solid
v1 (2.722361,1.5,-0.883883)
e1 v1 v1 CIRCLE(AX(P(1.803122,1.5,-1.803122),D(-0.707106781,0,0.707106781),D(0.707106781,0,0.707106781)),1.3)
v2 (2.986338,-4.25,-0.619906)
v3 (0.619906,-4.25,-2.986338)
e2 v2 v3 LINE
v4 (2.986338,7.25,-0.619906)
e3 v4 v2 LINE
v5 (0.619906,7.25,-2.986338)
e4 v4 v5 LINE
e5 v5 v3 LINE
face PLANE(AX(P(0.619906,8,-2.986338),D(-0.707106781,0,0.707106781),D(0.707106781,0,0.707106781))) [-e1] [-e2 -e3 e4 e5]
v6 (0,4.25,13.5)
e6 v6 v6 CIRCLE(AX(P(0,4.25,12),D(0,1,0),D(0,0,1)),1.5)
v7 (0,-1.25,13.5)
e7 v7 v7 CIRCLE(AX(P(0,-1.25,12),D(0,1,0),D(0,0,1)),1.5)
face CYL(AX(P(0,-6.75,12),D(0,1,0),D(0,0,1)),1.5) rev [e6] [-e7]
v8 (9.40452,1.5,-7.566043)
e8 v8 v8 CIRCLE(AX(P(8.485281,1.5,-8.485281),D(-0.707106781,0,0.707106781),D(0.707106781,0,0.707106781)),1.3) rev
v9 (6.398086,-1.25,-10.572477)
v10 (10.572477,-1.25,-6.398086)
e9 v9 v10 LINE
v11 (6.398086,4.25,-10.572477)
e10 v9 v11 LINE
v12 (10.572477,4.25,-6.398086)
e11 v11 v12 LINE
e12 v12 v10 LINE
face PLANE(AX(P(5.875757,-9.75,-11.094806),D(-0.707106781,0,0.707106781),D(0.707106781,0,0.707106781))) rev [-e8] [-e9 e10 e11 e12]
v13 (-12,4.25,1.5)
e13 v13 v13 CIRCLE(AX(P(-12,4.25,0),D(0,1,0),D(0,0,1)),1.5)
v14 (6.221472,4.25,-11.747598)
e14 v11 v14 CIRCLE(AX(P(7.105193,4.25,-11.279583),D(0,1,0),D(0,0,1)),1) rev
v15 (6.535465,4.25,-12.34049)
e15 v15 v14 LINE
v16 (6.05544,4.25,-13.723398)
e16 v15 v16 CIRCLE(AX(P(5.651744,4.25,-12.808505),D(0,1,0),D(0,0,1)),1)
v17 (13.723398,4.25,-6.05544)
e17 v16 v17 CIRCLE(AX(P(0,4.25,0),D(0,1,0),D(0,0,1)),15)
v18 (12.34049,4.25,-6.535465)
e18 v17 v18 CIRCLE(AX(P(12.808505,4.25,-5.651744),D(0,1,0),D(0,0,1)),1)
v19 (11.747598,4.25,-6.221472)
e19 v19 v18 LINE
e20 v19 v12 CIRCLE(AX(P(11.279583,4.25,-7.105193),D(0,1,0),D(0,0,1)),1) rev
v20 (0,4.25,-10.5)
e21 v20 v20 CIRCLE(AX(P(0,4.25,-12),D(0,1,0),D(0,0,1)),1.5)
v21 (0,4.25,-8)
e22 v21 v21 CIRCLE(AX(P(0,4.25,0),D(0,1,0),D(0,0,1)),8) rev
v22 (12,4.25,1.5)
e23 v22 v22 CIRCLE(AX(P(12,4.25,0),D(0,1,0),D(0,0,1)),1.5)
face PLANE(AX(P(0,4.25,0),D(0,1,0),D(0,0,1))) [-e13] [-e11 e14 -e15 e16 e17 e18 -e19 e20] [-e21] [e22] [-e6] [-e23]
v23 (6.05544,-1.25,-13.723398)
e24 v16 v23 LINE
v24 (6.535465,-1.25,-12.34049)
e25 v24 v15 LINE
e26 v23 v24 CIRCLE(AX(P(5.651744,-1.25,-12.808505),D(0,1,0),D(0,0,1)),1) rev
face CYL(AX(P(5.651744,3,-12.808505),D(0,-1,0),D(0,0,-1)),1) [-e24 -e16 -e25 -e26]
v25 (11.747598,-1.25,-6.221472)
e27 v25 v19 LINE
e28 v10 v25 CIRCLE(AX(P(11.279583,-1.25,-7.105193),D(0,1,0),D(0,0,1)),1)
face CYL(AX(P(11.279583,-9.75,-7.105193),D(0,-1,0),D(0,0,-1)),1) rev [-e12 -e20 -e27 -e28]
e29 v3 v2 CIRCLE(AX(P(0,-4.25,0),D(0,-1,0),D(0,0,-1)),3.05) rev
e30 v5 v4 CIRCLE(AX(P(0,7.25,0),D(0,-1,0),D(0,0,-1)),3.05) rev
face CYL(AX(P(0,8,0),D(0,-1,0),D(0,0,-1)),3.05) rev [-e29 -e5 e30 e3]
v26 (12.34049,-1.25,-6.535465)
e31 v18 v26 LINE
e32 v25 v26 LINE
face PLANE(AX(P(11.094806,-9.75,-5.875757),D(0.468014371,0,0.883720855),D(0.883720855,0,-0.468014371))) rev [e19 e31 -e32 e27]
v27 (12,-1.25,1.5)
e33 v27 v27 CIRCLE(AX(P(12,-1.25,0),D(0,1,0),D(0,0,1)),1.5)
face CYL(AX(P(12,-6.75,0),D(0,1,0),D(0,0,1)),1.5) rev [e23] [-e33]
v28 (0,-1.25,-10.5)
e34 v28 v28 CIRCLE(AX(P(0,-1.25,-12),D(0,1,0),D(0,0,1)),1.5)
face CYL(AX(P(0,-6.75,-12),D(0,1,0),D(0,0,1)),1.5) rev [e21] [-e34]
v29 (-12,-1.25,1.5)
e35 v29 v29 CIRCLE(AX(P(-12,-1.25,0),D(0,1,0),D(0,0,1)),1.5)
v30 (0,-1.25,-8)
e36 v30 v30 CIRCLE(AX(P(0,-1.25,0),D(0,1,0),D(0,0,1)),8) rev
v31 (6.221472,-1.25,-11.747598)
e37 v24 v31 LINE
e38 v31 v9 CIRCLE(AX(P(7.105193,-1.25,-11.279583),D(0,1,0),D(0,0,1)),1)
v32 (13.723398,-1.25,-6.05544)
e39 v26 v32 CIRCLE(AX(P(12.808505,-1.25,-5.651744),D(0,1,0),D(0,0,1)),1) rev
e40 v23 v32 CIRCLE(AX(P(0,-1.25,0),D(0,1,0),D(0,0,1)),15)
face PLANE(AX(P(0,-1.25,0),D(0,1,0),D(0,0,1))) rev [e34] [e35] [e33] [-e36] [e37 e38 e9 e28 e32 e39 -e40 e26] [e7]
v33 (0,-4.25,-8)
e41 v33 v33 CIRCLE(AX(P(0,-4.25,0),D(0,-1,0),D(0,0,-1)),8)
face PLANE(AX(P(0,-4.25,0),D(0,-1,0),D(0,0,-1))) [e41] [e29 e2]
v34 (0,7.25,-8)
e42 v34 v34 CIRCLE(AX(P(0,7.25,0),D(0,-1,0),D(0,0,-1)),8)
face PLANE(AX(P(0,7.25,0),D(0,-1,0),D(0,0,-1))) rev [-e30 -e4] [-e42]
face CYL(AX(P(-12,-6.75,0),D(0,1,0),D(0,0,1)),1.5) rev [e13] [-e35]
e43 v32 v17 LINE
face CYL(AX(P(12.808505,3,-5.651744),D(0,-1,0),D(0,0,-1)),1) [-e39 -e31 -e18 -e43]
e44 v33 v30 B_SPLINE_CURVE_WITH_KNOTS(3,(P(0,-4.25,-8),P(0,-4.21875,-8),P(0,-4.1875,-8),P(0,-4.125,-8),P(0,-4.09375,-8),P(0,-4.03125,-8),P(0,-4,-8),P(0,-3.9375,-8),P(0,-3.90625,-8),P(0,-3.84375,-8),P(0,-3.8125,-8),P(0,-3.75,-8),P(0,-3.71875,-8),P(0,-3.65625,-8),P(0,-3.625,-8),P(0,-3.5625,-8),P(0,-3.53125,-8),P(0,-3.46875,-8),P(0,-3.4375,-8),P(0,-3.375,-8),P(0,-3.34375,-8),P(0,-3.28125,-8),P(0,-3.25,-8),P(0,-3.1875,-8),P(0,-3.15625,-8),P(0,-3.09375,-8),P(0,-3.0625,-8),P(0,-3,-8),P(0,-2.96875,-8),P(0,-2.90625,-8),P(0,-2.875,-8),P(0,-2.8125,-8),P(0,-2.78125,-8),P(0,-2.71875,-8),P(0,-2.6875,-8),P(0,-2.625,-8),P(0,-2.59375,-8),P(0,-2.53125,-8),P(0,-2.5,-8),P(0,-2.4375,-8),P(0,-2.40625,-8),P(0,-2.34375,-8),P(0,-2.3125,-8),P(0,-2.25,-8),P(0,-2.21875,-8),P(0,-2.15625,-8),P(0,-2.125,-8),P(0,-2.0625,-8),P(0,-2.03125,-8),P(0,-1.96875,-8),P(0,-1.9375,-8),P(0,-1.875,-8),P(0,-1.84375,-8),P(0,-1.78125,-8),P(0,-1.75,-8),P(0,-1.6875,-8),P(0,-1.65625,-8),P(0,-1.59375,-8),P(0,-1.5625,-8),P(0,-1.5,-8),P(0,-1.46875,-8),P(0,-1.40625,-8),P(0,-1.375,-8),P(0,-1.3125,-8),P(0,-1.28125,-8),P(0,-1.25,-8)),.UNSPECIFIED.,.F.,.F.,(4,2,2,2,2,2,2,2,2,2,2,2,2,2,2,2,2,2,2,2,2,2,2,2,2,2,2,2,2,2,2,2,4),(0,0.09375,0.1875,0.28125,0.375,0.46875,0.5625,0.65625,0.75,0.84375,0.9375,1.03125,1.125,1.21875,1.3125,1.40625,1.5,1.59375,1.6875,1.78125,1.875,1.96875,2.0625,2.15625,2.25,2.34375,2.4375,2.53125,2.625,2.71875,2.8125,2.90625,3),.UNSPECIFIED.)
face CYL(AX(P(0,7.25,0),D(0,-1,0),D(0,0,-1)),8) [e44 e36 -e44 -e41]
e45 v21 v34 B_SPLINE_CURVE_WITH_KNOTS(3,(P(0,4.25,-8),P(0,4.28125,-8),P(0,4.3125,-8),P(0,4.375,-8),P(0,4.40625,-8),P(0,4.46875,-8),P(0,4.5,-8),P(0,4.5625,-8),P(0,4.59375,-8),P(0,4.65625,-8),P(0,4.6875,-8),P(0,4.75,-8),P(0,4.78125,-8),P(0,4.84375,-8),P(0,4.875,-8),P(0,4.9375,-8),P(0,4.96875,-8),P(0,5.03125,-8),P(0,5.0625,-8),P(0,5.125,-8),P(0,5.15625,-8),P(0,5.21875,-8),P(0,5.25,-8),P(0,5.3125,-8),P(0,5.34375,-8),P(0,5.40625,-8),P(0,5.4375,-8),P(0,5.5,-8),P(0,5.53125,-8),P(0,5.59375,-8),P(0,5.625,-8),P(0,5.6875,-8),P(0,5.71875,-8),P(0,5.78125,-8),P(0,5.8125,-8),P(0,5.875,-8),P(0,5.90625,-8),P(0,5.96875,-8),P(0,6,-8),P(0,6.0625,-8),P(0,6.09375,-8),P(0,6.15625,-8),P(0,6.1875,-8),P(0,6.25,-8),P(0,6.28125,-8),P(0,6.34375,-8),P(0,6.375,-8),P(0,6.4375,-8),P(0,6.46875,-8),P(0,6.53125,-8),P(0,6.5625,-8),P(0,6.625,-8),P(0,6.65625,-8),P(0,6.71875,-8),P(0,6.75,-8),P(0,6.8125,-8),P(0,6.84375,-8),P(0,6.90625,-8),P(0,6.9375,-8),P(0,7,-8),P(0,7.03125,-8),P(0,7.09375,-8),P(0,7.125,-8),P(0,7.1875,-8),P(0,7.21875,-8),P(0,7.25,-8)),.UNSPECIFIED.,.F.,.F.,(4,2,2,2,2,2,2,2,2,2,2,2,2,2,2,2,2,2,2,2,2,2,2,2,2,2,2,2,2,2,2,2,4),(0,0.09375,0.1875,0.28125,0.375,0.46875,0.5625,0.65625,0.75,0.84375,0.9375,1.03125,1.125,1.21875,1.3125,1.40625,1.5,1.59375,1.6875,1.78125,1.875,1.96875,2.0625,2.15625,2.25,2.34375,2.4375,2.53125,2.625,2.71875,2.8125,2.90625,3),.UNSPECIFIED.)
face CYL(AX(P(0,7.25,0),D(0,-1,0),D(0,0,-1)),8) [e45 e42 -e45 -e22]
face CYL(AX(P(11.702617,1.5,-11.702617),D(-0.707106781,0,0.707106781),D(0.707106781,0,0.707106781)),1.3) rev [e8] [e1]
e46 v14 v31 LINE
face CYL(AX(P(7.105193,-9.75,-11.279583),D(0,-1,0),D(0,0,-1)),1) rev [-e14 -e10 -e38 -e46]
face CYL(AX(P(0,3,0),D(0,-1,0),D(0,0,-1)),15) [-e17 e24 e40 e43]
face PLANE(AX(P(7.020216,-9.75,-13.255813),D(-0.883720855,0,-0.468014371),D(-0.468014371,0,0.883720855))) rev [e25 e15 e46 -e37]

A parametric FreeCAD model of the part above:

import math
import FreeCAD as App
import Part
import Sketcher
from FreeCAD import Vector
Q = App.Units.Quantity


def edges_at(feature, points):
    """Names of the edges that pass closest to the given points."""
    edges = feature.Shape.Edges
    near = lambda p: min(range(len(edges)), key=lambda i: edges[i].distToShape(Part.Vertex(*p))[0])
    return sorted({f"Edge{near(p) + 1}" for p in points})

doc = App.newDocument("Part")
params = doc.addObject("Spreadsheet::Sheet", "Params")
for row, (alias, value) in enumerate([
    ("sketch1_diameter", "30 mm"),
    ("sketch1_diameter2", "3 mm"),
    ("sketch1_diameter3", "4 mm"),
    ("pad1_length", "3 mm"),
    ("sketch2_diameter", "16 mm"),
    ("pad2_length", "4.25 mm"),
    ("pad2_length2", "7.25 mm"),
    ("sketch3_diameter", "30 mm"),
    ("pad3_length", "1.25 mm"),
    ("pad3_length2", "4.25 mm"),
    ("sketch4_radius", "3.05 mm"),
    ("sketch5_diameter", "2.6 mm"),
    ("pocket2_length", "14 mm"),
    ("sketch6_diameter", "3 mm"),
    ("pocket3_length", "14 mm"),
    ("sketch7_radius", "15 mm"),
    ("pocket4_length", "14 mm"),
    ("fillet_radius", "1 mm"),
], start=1):
    params.set(f"A{row}", alias)
    params.set(f"B{row}", "=" + value)
    params.setAlias(f"B{row}", alias)

body = doc.addObject("PartDesign::Body", "Body")

sketch1 = body.newObject("Sketcher::SketchObject", "Sketch")
sketch1.AttachmentSupport = (doc.getObject("XZ_Plane"), [""])
sketch1.MapMode = "FlatFace"
sketch1.addGeometry([
    Part.Circle(Vector(0, 0, 0), Vector(0, 0, 1), 15),
    Part.Circle(Vector(0, -12, 0), Vector(0, 0, 1), 1.5),
    Part.Circle(Vector(0, -6, 0), Vector(0, 0, 1), 1.5),
    Part.Circle(Vector(-12, 0, 0), Vector(0, 0, 1), 1.5),
    Part.Circle(Vector(-6, 0, 0), Vector(0, 0, 1), 1.5),
    Part.Circle(Vector(12, 0, 0), Vector(0, 0, 1), 1.5),
    Part.Circle(Vector(0, 0, 0), Vector(0, 0, 1), 2),
    Part.Circle(Vector(0, 6, 0), Vector(0, 0, 1), 1.5),
    Part.Circle(Vector(6, 0, 0), Vector(0, 0, 1), 1.5),
    Part.Circle(Vector(0, 12, 0), Vector(0, 0, 1), 1.5),
], False)
sketch1.addConstraint([
    Sketcher.Constraint("Coincident", 0, 3, -1, 1),
    Sketcher.Constraint("Coincident", 6, 3, -1, 1),
    Sketcher.Constraint("Equal", 1, 2),
    Sketcher.Constraint("Equal", 2, 3),
    Sketcher.Constraint("Equal", 3, 4),
    Sketcher.Constraint("Equal", 4, 5),
    Sketcher.Constraint("Equal", 5, 7),
    Sketcher.Constraint("Equal", 7, 8),
    Sketcher.Constraint("Equal", 8, 9),
    Sketcher.Constraint("Symmetric", 3, 3, 5, 3, -1, 1),
    Sketcher.Constraint("Symmetric", 2, 3, 7, 3, -1, 1),
    Sketcher.Constraint("Symmetric", 4, 3, 8, 3, -1, 1),
    Sketcher.Constraint("Symmetric", 1, 3, 9, 3, -1, 1),
    Sketcher.Constraint("PointOnObject", 1, 3, -2),
    Sketcher.Constraint("PointOnObject", 2, 3, -2),
    Sketcher.Constraint("PointOnObject", 3, 3, -1),
    Sketcher.Constraint("PointOnObject", 4, 3, -1),
    Sketcher.Constraint("Diameter", 0, 30.0),
    Sketcher.Constraint("Diameter", 1, 3.0),
    Sketcher.Constraint("Diameter", 6, 4.0),
    Sketcher.Constraint("DistanceY", 1, 3, -1, 1, 12.0),
    Sketcher.Constraint("DistanceY", 2, 3, -1, 1, 6.0),
    Sketcher.Constraint("DistanceX", 3, 3, -1, 1, 12.0),
    Sketcher.Constraint("DistanceX", 4, 3, -1, 1, 6.0),
])
sketch1.setExpression("Constraints[17]", "Params.sketch1_diameter")
sketch1.setExpression("Constraints[18]", "Params.sketch1_diameter2")
sketch1.setExpression("Constraints[19]", "Params.sketch1_diameter3")
pad1 = body.newObject("PartDesign::Pad", "Pad")
pad1.Profile = sketch1
pad1.setExpression("Length", "Params.pad1_length")
pad1.Reversed = True

sketch2 = body.newObject("Sketcher::SketchObject", "Sketch001")
sketch2.AttachmentSupport = (doc.getObject("XZ_Plane"), [""])
sketch2.MapMode = "FlatFace"
sketch2.addGeometry(Part.Circle(Vector(0, 0, 0), Vector(0, 0, 1), 8), False)
sketch2.addConstraint([
    Sketcher.Constraint("Coincident", 0, 3, -1, 1),
    Sketcher.Constraint("Diameter", 0, 16.0),
])
sketch2.setExpression("Constraints[1]", "Params.sketch2_diameter")
pad2 = body.newObject("PartDesign::Pad", "Pad001")
pad2.Profile = sketch2
pad2.Type = "TwoLengths"
pad2.setExpression("Length", "Params.pad2_length")
pad2.setExpression("Length2", "Params.pad2_length2")

sketch3 = body.newObject("Sketcher::SketchObject", "Sketch002")
sketch3.AttachmentSupport = (doc.getObject("XZ_Plane"), [""])
sketch3.MapMode = "FlatFace"
sketch3.AttachmentOffset = App.Placement(Vector(0, 0, -3), App.Rotation())
sketch3.addGeometry(Part.Circle(Vector(0, 0, 0), Vector(0, 0, 1), 15), False)
sketch3.addConstraint([
    Sketcher.Constraint("Coincident", 0, 3, -1, 1),
    Sketcher.Constraint("Diameter", 0, 30.0),
])
sketch3.setExpression("Constraints[1]", "Params.sketch3_diameter")
pad3 = body.newObject("PartDesign::Pad", "Pad002")
pad3.Profile = sketch3
pad3.Type = "TwoLengths"
pad3.setExpression("Length", "Params.pad3_length")
pad3.setExpression("Length2", "Params.pad3_length2")
pad3.Reversed = True

sketch4 = body.newObject("Sketcher::SketchObject", "Sketch003")
sketch4.AttachmentSupport = (doc.getObject("XZ_Plane"), [""])
sketch4.MapMode = "FlatFace"
sketch4.AttachmentOffset = App.Placement(Vector(0, 0, -3), App.Rotation())
sketch4.addGeometry([
    Part.LineSegment(Vector(2.986338, -0.619906, 0), Vector(0.619906, -2.986338, 0)),
    Part.ArcOfCircle(Part.Circle(Vector(0, 0, 0), Vector(0, 0, 1), 3.05), math.radians(-11.726957), math.radians(281.726957)),
], False)
sketch4.addConstraint([
    Sketcher.Constraint("Coincident", 0, 1, 1, 1),
    Sketcher.Constraint("Coincident", 1, 2, 0, 2),
    Sketcher.Constraint("Coincident", 1, 3, -1, 1),
    Sketcher.Constraint("Angle", 0, Q("-135 deg")),
    Sketcher.Constraint("Radius", 1, 3.05),
    Sketcher.Constraint("Distance", 0, 3.34664),
])
sketch4.setExpression("Constraints[4]", "Params.sketch4_radius")
pocket1 = body.newObject("PartDesign::Pocket", "Pocket")
pocket1.Profile = sketch4
pocket1.Type = "ThroughAll"
pocket1.Midplane = True

sketch5 = body.newObject("Sketcher::SketchObject", "Sketch004")
sketch5.Placement = App.Placement(Vector(1.803122, 0, -1.803122), App.Rotation(Vector(0.707106781, 0, 0.707106781), Vector(0, 0.999999999, 0), Vector(-0.707106781, 0, 0.707106781), "ZXY"))
sketch5.addGeometry(Part.Circle(Vector(0, 1.5, 0), Vector(0, 0, 1), 1.3), False)
sketch5.addConstraint([
    Sketcher.Constraint("PointOnObject", 0, 3, -2),
    Sketcher.Constraint("Diameter", 0, 2.6),
    Sketcher.Constraint("DistanceY", -1, 1, 0, 3, 1.5),
])
sketch5.setExpression("Constraints[1]", "Params.sketch5_diameter")
pocket2 = body.newObject("PartDesign::Pocket", "Pocket001")
pocket2.Profile = sketch5
pocket2.setExpression("Length", "Params.pocket2_length")

sketch6 = body.newObject("Sketcher::SketchObject", "Sketch005")
sketch6.AttachmentSupport = (doc.getObject("XZ_Plane"), [""])
sketch6.MapMode = "FlatFace"
sketch6.AttachmentOffset = App.Placement(Vector(0, 0, -7.25), App.Rotation())
sketch6.addGeometry([
    Part.Circle(Vector(0, -12, 0), Vector(0, 0, 1), 1.5),
    Part.Circle(Vector(-12, 0, 0), Vector(0, 0, 1), 1.5),
    Part.Circle(Vector(12, 0, 0), Vector(0, 0, 1), 1.5),
    Part.Circle(Vector(0, 12, 0), Vector(0, 0, 1), 1.5),
], False)
sketch6.addConstraint([
    Sketcher.Constraint("Equal", 0, 1),
    Sketcher.Constraint("Equal", 1, 2),
    Sketcher.Constraint("Equal", 2, 3),
    Sketcher.Constraint("Symmetric", 1, 3, 2, 3, -1, 1),
    Sketcher.Constraint("Symmetric", 0, 3, 3, 3, -1, 1),
    Sketcher.Constraint("PointOnObject", 0, 3, -2),
    Sketcher.Constraint("PointOnObject", 1, 3, -1),
    Sketcher.Constraint("Diameter", 0, 3.0),
    Sketcher.Constraint("DistanceY", 0, 3, -1, 1, 12.0),
    Sketcher.Constraint("DistanceX", 1, 3, -1, 1, 12.0),
])
sketch6.setExpression("Constraints[7]", "Params.sketch6_diameter")
pocket3 = body.newObject("PartDesign::Pocket", "Pocket002")
pocket3.Profile = sketch6
pocket3.setExpression("Length", "Params.pocket3_length")
pocket3.Reversed = True

sketch7 = body.newObject("Sketcher::SketchObject", "Sketch006")
sketch7.AttachmentSupport = (doc.getObject("XZ_Plane"), [""])
sketch7.MapMode = "FlatFace"
sketch7.AttachmentOffset = App.Placement(Vector(0, 0, 9.75), App.Rotation())
sketch7.addGeometry([
    Part.LineSegment(Vector(7.020216, -13.255813, 0), Vector(5.875757, -11.094806, 0)),
    Part.LineSegment(Vector(5.875757, -11.094806, 0), Vector(11.094806, -5.875757, 0)),
    Part.LineSegment(Vector(11.094806, -5.875757, 0), Vector(13.255813, -7.020216, 0)),
    Part.ArcOfCircle(Part.Circle(Vector(0, 0, 0), Vector(0, 0, 1), 15), math.radians(-62.094518), math.radians(-27.905482)),
], False)
sketch7.addConstraint([
    Sketcher.Constraint("Coincident", 0, 2, 1, 1),
    Sketcher.Constraint("Coincident", 1, 2, 2, 1),
    Sketcher.Constraint("Coincident", 2, 2, 3, 2),
    Sketcher.Constraint("Coincident", 3, 1, 0, 1),
    Sketcher.Constraint("Coincident", 3, 3, -1, 1),
    Sketcher.Constraint("Equal", 0, 2),
    Sketcher.Constraint("Radius", 3, 15.0),
    Sketcher.Constraint("Angle", 1, Q("45 deg")),
    Sketcher.Constraint("Distance", 0, 2.44535),
    Sketcher.Constraint("Distance", 1, 7.380851),
    Sketcher.Constraint("DistanceY", 2, 2, 1, 2, 1.144459),
    Sketcher.Constraint("DistanceX", 0, 2, 3, 1, 1.144459),
])
sketch7.setExpression("Constraints[6]", "Params.sketch7_radius")
pocket4 = body.newObject("PartDesign::Pocket", "Pocket003")
pocket4.Profile = sketch7
pocket4.setExpression("Length", "Params.pocket4_length")
doc.recompute()

fillet = body.newObject("PartDesign::Fillet", "Fillet")
fillet.Base = (pocket4, edges_at(pocket4, [
    (13.256, 1.5, -7.02),
    (5.876, 1.5, -11.095),
    (7.02, 1.5, -13.256),
    (11.095, 1.5, -5.876),
]))
fillet.setExpression("Radius", "Params.fillet_radius")

doc.recompute()
